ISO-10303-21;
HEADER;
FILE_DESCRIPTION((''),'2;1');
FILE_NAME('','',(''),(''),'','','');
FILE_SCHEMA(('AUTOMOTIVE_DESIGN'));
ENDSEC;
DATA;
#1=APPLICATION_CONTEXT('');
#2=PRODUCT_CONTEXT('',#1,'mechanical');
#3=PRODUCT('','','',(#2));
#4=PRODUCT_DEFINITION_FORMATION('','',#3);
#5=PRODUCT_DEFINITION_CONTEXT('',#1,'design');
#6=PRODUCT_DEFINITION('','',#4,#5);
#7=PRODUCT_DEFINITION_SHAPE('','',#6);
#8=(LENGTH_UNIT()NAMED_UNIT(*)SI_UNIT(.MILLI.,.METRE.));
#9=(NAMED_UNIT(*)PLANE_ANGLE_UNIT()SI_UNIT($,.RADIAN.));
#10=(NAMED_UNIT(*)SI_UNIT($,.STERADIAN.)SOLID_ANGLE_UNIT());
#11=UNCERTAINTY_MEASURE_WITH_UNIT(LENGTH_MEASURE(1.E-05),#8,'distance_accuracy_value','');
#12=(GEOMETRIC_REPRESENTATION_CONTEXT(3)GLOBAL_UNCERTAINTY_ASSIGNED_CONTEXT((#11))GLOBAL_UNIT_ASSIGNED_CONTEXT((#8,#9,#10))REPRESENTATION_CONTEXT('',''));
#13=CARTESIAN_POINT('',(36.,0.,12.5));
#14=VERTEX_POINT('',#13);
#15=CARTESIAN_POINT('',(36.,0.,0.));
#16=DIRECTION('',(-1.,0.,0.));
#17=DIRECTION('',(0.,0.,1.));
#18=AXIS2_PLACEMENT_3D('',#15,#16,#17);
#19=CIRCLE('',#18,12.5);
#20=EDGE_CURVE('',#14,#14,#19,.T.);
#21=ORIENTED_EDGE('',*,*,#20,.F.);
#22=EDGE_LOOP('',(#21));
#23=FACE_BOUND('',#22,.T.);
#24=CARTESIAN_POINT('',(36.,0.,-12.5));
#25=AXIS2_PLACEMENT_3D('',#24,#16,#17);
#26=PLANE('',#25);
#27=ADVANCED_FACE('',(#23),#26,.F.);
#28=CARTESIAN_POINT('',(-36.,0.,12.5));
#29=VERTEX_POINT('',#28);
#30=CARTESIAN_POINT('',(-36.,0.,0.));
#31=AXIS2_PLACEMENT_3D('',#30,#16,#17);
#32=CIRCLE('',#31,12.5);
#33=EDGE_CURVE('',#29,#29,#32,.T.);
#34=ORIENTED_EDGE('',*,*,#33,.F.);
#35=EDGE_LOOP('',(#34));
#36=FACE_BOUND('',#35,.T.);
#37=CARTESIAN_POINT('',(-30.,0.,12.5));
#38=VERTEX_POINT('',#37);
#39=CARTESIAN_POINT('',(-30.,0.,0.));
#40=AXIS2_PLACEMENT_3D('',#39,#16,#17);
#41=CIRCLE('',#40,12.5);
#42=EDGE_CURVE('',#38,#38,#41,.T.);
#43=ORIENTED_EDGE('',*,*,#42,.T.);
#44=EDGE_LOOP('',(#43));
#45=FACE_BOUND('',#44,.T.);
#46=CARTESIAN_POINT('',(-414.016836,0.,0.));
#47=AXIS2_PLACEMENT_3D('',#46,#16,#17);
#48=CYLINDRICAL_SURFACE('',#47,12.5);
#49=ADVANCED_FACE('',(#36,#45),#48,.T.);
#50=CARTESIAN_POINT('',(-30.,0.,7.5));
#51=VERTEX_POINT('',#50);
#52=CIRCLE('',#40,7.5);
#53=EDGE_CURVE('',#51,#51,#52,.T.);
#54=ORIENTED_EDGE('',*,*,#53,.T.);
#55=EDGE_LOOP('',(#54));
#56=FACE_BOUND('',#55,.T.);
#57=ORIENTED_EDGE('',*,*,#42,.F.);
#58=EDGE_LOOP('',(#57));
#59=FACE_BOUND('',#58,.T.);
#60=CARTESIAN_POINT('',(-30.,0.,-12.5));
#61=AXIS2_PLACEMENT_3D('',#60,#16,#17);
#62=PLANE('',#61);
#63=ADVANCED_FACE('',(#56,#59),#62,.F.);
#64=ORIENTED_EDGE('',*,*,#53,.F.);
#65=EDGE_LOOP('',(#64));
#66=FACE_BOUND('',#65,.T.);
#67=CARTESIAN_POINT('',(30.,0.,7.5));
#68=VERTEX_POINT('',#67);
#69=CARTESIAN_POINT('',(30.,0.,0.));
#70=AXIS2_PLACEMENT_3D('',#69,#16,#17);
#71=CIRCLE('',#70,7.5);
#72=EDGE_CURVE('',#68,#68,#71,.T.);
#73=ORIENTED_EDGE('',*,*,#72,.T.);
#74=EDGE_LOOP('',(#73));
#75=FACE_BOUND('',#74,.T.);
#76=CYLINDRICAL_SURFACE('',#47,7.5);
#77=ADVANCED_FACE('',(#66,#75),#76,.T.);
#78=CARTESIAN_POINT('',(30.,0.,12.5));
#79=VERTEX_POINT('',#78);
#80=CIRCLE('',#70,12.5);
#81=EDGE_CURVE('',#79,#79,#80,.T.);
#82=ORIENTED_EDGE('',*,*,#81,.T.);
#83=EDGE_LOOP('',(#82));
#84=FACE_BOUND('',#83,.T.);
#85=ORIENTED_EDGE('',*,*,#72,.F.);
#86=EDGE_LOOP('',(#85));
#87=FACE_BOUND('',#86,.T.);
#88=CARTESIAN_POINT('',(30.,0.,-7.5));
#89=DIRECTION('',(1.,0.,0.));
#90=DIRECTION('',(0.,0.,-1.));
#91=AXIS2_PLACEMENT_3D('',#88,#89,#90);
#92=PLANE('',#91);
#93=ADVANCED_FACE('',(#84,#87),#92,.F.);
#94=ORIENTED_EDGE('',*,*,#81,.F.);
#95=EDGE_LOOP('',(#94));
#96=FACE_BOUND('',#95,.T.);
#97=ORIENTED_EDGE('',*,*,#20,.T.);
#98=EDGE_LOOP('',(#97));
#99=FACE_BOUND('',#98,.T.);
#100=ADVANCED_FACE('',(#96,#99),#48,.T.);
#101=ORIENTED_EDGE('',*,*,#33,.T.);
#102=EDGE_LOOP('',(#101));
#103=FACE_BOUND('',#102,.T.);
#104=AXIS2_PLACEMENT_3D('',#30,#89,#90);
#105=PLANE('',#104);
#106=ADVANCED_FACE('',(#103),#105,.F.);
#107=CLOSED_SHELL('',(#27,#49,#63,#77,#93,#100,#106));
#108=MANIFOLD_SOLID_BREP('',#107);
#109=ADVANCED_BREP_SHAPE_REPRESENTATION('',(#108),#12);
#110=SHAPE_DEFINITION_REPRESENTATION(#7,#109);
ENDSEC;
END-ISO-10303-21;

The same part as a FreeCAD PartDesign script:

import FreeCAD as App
import Part
import Sketcher


def add_polygon(sketch, points):
    """Adds a closed chain of lines whose ends are joined by coincident constraints."""
    first, n = sketch.GeometryCount, len(points)
    for a, b in zip(points, points[1:] + points[:1]):
        sketch.addGeometry(Part.LineSegment(App.Vector(*a, 0), App.Vector(*b, 0)), False)
    for i in range(n):
        sketch.addConstraint(Sketcher.Constraint("Coincident", first + i, 2, first + (i + 1) % n, 1))

doc = App.newDocument("Part")
body = doc.addObject("PartDesign::Body", "Body")

sketch1 = body.newObject("Sketcher::SketchObject", "Sketch")
sketch1.AttachmentSupport = (doc.getObject("XZ_Plane"), [""])
sketch1.MapMode = "FlatFace"
add_polygon(sketch1, [(-36, 0), (36, 0), (36, -12.5), (30, -12.5), (30, -7.5), (-30, -7.5), (-30, -12.5), (-36, -12.5)])
sketch1.addConstraint([
    Sketcher.Constraint("Horizontal", 0),
    Sketcher.Constraint("Vertical", 1),
    Sketcher.Constraint("Horizontal", 2),
    Sketcher.Constraint("Vertical", 3),
    Sketcher.Constraint("Horizontal", 4),
    Sketcher.Constraint("Vertical", 5),
    Sketcher.Constraint("Horizontal", 6),
    Sketcher.Constraint("Vertical", 7),
    Sketcher.Constraint("Symmetric", 0, 2, 7, 2, -1, 1),
    Sketcher.Constraint("Symmetric", 2, 2, 5, 2, -2),
    Sketcher.Constraint("DistanceX", 0, 1, 0, 2, 72.0),
    Sketcher.Constraint("DistanceX", 2, 2, 2, 1, 6.0),
    Sketcher.Constraint("DistanceY", 3, 1, 3, 2, 5.0),
    Sketcher.Constraint("DistanceY", 1, 2, 1, 1, 12.5),
])
revolution = body.newObject("PartDesign::Revolution", "Revolution")
revolution.Profile = sketch1
revolution.ReferenceAxis = (sketch1, ["H_Axis"])
revolution.Angle = 360

doc.recompute()
